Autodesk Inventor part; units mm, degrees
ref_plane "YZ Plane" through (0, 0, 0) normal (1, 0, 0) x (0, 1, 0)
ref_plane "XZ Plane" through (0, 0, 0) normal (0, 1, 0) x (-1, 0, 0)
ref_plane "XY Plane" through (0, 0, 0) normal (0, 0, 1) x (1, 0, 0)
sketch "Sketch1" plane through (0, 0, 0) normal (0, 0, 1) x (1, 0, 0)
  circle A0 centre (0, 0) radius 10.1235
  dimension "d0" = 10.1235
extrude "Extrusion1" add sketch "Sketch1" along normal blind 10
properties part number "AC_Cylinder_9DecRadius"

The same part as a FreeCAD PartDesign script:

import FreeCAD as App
import Part
import Sketcher

V = App.Vector
Q = App.Units.Quantity

doc = App.newDocument("Part")
body = doc.addObject("PartDesign::Body", "Body")

# Sketch on XY plane
sketch1 = body.newObject("Sketcher::SketchObject", "Sketch")
sketch1.AttachmentSupport = (doc.getObject("XY_Plane"), [""])
sketch1.MapMode = "FlatFace"
sketch1.addGeometry(Part.Circle(V(0, 0, 0), V(0, 0, 1), 10), False)
sketch1.addConstraint(Sketcher.Constraint("Coincident", 0, 3, -1, 1))
sketch1.addConstraint(Sketcher.Constraint("Diameter", 0, Q("20.247 mm")))
pad1 = body.newObject("PartDesign::Pad", "Pad")
pad1.Profile = sketch1
pad1.Length = 10

doc.recompute()
